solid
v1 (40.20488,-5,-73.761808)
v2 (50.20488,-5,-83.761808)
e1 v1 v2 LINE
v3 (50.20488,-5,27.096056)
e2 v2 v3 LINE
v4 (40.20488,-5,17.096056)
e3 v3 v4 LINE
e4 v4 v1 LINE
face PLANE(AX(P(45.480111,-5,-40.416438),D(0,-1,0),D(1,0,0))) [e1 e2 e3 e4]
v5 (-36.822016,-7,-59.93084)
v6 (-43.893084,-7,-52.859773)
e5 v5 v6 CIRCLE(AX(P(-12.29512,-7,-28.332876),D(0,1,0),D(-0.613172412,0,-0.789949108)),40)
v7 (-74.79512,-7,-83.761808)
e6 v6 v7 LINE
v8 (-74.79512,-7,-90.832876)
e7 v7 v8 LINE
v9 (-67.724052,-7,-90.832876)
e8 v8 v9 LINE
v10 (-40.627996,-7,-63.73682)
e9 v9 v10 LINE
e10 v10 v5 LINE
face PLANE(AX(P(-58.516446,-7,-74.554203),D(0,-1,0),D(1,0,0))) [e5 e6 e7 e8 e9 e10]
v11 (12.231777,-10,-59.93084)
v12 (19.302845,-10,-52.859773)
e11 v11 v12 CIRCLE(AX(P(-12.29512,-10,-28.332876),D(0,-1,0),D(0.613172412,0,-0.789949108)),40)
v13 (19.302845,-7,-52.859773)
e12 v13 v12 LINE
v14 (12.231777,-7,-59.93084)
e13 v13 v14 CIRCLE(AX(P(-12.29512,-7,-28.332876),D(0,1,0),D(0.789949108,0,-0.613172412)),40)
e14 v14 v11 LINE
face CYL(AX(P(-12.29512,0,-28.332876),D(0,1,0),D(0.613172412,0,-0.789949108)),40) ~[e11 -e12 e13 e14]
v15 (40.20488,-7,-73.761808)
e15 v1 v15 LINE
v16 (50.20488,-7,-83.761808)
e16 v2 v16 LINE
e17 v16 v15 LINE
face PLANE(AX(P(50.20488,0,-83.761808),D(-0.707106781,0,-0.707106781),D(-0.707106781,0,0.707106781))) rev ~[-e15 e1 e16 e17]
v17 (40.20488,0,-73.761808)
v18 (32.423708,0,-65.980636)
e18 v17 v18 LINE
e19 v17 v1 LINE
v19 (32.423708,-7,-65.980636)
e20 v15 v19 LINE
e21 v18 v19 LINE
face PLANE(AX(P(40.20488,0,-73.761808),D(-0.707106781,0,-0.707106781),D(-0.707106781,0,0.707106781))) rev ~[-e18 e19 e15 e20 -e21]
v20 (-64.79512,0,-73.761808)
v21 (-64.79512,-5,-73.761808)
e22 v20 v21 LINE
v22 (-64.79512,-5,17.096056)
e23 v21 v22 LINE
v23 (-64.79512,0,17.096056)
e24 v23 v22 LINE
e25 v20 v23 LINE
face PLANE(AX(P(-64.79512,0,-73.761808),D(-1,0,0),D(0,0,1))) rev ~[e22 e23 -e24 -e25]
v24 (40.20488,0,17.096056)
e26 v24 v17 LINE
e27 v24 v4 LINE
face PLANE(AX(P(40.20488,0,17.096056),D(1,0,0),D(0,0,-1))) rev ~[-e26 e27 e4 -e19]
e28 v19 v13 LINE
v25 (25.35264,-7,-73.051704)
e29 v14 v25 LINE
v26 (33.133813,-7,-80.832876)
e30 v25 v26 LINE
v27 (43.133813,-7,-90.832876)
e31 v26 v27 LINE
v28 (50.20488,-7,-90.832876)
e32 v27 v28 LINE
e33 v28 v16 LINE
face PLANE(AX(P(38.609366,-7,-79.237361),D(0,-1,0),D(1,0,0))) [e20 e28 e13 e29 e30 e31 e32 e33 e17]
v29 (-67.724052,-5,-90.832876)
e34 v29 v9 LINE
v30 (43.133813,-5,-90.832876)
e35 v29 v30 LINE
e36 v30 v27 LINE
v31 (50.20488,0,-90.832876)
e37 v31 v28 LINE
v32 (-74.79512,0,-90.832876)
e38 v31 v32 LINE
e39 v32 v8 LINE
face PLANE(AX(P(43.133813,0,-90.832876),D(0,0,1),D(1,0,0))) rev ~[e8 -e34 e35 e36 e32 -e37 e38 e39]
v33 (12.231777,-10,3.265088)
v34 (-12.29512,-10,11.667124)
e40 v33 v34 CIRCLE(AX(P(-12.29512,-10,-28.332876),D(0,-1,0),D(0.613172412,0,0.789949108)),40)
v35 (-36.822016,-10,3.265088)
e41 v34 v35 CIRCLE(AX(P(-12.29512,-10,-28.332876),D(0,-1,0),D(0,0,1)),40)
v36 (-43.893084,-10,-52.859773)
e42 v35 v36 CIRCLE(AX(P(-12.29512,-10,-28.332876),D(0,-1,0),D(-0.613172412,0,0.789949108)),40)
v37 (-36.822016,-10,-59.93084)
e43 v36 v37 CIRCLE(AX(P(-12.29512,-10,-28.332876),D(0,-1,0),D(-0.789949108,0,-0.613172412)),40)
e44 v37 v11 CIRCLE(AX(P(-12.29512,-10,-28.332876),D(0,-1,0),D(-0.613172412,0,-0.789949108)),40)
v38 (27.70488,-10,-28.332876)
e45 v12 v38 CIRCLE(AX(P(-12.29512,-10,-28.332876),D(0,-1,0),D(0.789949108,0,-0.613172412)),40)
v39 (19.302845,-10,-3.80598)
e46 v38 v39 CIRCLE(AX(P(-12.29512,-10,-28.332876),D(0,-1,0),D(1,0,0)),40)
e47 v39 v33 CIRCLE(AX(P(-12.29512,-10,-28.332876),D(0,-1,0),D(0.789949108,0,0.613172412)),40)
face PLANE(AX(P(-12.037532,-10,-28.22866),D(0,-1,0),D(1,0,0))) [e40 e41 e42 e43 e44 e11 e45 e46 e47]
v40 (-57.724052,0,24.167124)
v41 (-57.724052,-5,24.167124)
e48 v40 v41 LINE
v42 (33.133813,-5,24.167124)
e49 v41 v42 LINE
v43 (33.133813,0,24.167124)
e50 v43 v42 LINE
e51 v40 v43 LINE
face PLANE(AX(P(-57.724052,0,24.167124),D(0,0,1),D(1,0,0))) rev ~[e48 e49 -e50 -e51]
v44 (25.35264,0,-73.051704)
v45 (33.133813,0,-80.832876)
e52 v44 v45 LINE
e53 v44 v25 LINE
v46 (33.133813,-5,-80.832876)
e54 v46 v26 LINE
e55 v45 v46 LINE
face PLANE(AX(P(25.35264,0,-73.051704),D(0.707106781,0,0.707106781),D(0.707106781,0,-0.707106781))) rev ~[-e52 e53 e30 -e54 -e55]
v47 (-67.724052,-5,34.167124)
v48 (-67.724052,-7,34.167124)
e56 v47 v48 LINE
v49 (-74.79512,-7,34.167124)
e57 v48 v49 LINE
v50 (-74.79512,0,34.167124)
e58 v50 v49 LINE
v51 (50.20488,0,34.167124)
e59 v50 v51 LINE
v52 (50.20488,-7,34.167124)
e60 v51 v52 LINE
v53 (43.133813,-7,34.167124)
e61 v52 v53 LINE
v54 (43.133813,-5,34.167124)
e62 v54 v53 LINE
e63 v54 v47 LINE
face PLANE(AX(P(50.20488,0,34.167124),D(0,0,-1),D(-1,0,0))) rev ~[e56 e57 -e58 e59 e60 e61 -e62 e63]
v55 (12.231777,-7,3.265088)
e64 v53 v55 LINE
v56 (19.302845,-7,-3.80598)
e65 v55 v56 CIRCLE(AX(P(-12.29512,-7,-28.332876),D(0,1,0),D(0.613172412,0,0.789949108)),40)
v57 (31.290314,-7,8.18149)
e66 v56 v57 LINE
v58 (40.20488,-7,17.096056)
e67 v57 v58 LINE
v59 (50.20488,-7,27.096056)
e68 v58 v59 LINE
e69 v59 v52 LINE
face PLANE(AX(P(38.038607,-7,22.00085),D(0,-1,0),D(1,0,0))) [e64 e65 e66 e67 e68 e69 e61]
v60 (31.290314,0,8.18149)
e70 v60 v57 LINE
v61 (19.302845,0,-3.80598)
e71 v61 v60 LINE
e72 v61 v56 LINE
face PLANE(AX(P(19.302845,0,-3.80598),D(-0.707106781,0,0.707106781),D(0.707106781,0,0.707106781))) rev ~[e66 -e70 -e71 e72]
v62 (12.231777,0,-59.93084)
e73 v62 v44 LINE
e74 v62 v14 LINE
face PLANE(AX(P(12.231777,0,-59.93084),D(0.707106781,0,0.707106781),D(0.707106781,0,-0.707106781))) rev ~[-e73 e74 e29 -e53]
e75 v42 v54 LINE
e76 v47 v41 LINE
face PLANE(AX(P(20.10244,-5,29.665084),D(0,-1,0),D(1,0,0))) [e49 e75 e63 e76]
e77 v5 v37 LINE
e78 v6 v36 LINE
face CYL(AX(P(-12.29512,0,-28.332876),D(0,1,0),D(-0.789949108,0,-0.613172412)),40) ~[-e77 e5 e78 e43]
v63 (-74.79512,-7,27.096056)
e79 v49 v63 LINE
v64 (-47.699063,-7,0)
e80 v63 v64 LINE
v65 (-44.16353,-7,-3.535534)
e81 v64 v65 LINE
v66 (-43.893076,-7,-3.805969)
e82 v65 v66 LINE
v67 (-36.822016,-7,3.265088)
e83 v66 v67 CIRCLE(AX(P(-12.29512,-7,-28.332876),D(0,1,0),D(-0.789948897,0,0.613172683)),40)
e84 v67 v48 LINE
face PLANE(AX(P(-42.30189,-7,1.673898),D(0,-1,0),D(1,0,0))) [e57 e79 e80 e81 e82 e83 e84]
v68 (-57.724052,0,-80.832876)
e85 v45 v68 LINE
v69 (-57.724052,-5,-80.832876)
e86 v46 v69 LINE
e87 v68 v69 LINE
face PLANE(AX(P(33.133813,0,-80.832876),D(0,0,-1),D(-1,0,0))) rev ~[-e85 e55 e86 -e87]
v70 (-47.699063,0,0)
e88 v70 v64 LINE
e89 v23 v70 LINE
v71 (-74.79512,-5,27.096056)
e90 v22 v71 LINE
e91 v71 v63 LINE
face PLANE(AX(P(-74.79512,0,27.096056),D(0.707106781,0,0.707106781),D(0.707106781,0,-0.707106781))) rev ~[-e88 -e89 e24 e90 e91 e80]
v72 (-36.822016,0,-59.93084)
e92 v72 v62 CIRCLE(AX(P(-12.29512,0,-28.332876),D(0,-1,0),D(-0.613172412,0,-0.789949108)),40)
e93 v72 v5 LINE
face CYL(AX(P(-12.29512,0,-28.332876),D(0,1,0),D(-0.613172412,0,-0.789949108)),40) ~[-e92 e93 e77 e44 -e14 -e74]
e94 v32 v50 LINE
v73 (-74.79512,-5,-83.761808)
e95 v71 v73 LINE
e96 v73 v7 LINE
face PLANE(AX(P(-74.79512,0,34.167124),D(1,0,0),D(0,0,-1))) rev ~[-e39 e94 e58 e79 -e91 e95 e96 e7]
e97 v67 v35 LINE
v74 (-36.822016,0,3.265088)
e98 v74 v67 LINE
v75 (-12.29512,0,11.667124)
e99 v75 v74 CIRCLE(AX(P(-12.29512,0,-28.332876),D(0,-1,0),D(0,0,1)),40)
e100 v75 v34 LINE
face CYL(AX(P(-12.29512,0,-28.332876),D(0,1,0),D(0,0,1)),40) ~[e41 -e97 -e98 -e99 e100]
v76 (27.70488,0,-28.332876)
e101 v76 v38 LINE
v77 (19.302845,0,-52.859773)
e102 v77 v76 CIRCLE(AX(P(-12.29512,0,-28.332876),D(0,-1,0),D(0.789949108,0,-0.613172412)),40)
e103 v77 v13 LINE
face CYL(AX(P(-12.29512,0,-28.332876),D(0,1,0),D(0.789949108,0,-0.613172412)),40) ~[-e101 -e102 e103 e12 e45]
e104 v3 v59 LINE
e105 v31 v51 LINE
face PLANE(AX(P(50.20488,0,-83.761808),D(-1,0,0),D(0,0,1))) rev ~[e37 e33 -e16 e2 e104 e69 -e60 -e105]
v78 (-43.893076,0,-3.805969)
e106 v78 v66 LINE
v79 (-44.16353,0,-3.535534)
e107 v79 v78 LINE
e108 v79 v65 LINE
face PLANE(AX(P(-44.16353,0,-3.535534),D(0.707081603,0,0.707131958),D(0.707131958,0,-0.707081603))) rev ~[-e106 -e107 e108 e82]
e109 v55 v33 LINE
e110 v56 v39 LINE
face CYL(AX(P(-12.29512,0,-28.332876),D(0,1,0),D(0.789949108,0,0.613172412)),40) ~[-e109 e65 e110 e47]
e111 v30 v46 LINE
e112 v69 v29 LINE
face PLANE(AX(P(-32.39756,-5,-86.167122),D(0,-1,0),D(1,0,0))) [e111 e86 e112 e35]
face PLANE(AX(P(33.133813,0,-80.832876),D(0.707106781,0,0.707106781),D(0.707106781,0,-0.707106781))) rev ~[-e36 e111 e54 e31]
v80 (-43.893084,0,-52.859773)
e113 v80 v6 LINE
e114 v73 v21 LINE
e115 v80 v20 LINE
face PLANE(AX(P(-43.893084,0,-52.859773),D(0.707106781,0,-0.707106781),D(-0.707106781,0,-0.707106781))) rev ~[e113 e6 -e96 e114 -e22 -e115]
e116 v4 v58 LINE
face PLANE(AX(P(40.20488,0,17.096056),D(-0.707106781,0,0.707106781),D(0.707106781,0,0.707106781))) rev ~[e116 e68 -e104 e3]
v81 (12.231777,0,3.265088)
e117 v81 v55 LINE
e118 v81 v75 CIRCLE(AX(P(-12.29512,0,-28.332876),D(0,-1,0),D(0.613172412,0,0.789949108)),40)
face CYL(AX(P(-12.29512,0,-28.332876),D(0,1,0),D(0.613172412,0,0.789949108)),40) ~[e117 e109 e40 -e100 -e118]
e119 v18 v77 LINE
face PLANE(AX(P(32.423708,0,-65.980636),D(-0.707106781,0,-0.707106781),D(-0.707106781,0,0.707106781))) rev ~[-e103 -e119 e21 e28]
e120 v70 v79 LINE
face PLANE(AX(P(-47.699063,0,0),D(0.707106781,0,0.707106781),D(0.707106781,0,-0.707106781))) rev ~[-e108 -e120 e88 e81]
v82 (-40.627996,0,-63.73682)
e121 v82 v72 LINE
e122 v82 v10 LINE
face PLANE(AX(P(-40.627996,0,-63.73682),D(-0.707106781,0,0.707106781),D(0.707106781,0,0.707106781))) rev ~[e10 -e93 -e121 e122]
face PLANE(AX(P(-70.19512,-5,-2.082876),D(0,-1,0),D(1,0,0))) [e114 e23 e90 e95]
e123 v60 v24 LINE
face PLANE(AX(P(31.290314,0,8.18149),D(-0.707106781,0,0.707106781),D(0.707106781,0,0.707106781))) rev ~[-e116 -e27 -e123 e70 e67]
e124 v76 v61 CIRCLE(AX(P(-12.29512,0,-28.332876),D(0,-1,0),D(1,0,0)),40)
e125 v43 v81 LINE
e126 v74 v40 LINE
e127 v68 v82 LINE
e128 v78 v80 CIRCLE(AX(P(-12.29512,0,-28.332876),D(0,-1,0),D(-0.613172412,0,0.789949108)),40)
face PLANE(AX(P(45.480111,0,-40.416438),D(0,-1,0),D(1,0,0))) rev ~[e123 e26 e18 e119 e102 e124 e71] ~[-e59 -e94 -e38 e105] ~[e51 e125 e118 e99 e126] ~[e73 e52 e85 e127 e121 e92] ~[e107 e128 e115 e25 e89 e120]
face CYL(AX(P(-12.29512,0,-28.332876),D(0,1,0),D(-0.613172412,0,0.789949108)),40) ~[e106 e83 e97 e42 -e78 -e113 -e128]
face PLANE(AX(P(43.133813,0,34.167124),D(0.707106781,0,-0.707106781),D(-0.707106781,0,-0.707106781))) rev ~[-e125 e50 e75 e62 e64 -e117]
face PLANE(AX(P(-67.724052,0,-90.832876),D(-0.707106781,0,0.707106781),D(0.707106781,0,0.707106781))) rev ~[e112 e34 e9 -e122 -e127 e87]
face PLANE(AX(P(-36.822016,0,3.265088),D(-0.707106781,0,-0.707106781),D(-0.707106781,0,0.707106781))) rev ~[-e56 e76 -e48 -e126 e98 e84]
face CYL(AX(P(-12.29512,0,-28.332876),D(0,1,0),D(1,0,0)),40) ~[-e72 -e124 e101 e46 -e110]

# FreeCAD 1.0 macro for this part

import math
import FreeCAD as App
import Part
import Sketcher
from FreeCAD import Vector


def add_polygon(sketch, points):
    """Adds a closed chain of lines whose ends are joined by coincident constraints."""
    first, n = sketch.GeometryCount, len(points)
    for a, b in zip(points, points[1:] + points[:1]):
        sketch.addGeometry(Part.LineSegment(App.Vector(*a, 0), App.Vector(*b, 0)), False)
    for i in range(n):
        sketch.addConstraint(Sketcher.Constraint("Coincident", first + i, 2, first + (i + 1) % n, 1))

doc = App.newDocument("Part")
params = doc.addObject("Spreadsheet::Sheet", "Params")
for row, (alias, value) in enumerate([
    ("sketch1_radius", "40 mm"),
    ("pad1_length", "10 mm"),
    ("sketch2_radius", "40 mm"),
    ("sketch2_length", "5 mm"),
    ("pad2_length", "7 mm"),
    ("pad3_length", "5 mm"),
], start=1):
    params.set(f"A{row}", alias)
    params.set(f"B{row}", "=" + value)
    params.setAlias(f"B{row}", alias)

body = doc.addObject("PartDesign::Body", "Body")

# Sketch on XZ plane
sketch1 = body.newObject("Sketcher::SketchObject", "Sketch")
sketch1.AttachmentSupport = (doc.getObject("XZ_Plane"), [""])
sketch1.MapMode = "FlatFace"
sketch1.addGeometry([
    Part.ArcOfCircle(Part.Circle(Vector(-12, -28, 0), Vector(0, 0, 1), 40), math.radians(0), math.radians(38)),  # 0
    Part.ArcOfCircle(Part.Circle(Vector(-12, -28, 0), Vector(0, 0, 1), 40), math.radians(37.82), math.radians(52.18)),  # 1
    Part.ArcOfCircle(Part.Circle(Vector(-12, -28, 0), Vector(0, 0, 1), 40), math.radians(52), math.radians(90)),  # 2
    Part.ArcOfCircle(Part.Circle(Vector(-12, -28, 0), Vector(0, 0, 1), 40), math.radians(90), math.radians(128)),  # 3
    Part.ArcOfCircle(Part.Circle(Vector(-12, -28, 0), Vector(0, 0, 1), 40), math.radians(128), math.radians(218)),  # 4
    Part.ArcOfCircle(Part.Circle(Vector(-12, -28, 0), Vector(0, 0, 1), 40), math.radians(-142.18), math.radians(-127.82)),  # 5
    Part.ArcOfCircle(Part.Circle(Vector(-12, -28, 0), Vector(0, 0, 1), 40), math.radians(-128), math.radians(-52)),  # 6
    Part.ArcOfCircle(Part.Circle(Vector(-12, -28, 0), Vector(0, 0, 1), 40), math.radians(-52.18), math.radians(-37.82)),  # 7
    Part.ArcOfCircle(Part.Circle(Vector(-12, -28, 0), Vector(0, 0, 1), 40), math.radians(-38), math.radians(0)),  # 8
], False)
sketch1.addConstraint([
    Sketcher.Constraint("Tangent", 0, 2, 1, 1),
    Sketcher.Constraint("Tangent", 1, 2, 2, 1),
    Sketcher.Constraint("Tangent", 2, 2, 3, 1),
    Sketcher.Constraint("Tangent", 3, 2, 4, 1),
    Sketcher.Constraint("Tangent", 4, 2, 5, 1),
    Sketcher.Constraint("Tangent", 5, 2, 6, 1),
    Sketcher.Constraint("Tangent", 6, 2, 7, 1),
    Sketcher.Constraint("Tangent", 7, 2, 8, 1),
    Sketcher.Constraint("Tangent", 8, 2, 0, 1),
    Sketcher.Constraint("Coincident", 2, 3, 0, 3),
    Sketcher.Constraint("Coincident", 4, 3, 0, 3),
    Sketcher.Constraint("Coincident", 6, 3, 0, 3),
    Sketcher.Constraint("Horizontal", 1, 2, 3, 2),
    Sketcher.Constraint("Horizontal", 5, 2, 6, 2),
    Sketcher.Constraint("Horizontal", 4, 2, 7, 2),
    Sketcher.Constraint("Horizontal", 7, 3, 8, 2),
    Sketcher.Constraint("Vertical", 8, 3, 2, 2),
    Sketcher.Constraint("Vertical", 3, 2, 5, 2),
    Sketcher.Constraint("Vertical", 0, 2, 7, 2),
    Sketcher.Constraint("Radius", 0, 40.0),
    Sketcher.Constraint("DistanceX", 0, 3, -1, 1, 12.29512),
    Sketcher.Constraint("DistanceY", 0, 2, -1, 1, 3.80598),
    Sketcher.Constraint("DistanceY", -1, 1, 1, 2, 3.265088),
    Sketcher.Constraint("DistanceY", 5, 2, -1, 1, 59.93084),
])
sketch1.setExpression("Constraints[19]", "Params.sketch1_radius")
pad1 = body.newObject("PartDesign::Pad", "Pad")
pad1.Profile = sketch1
pad1.setExpression("Length", "Params.pad1_length")

# Sketch on XZ plane
sketch2 = body.newObject("Sketcher::SketchObject", "Sketch001")
sketch2.AttachmentSupport = (doc.getObject("XZ_Plane"), [""])
sketch2.MapMode = "FlatFace"
sketch2.addGeometry([
    Part.ArcOfCircle(Part.Circle(Vector(-12.3, -28.33, 0), Vector(0, 0, 1), 40), math.radians(127.82), math.radians(142.18)),  # 0
    Part.LineSegment(Vector(-36.82, 3.27, 0), Vector(-67.72, 34.17, 0)),  # 1
    Part.LineSegment(Vector(-67.72, 34.17, 0), Vector(-74.8, 34.17, 0)),  # 2
    Part.LineSegment(Vector(-74.8, 34.17, 0), Vector(-74.8, 27.1, 0)),  # 3
    Part.LineSegment(Vector(-74.8, 27.1, 0), Vector(-47.7, 0, 0)),  # 4
    Part.LineSegment(Vector(-47.7, 0, 0), Vector(-44.16, -3.54, 0)),  # 5
    Part.LineSegment(Vector(-44.16, -3.54, 0), Vector(-43.89, -3.81, 0)),  # 6
    Part.LineSegment(Vector(-74.8, -90.83, 0), Vector(-67.72, -90.83, 0)),  # 7
    Part.LineSegment(Vector(-67.72, -90.83, 0), Vector(-40.63, -63.74, 0)),  # 8
    Part.LineSegment(Vector(-40.63, -63.74, 0), Vector(-36.82, -59.93, 0)),  # 9
    Part.ArcOfCircle(Part.Circle(Vector(-12.3, -28.33, 0), Vector(0, 0, 1), 40), math.radians(-142.18), math.radians(-127.82)),  # 10
    Part.LineSegment(Vector(-43.89, -52.86, 0), Vector(-74.8, -83.76, 0)),  # 11
    Part.LineSegment(Vector(-74.8, -83.76, 0), Vector(-74.8, -90.83, 0)),  # 12
    Part.LineSegment(Vector(40.2, 17.1, 0), Vector(50.2, 27.1, 0)),  # 13
    Part.LineSegment(Vector(50.2, 27.1, 0), Vector(50.2, 34.17, 0)),  # 14
    Part.LineSegment(Vector(50.2, 34.17, 0), Vector(43.13, 34.17, 0)),  # 15
    Part.LineSegment(Vector(43.13, 34.17, 0), Vector(12.23, 3.27, 0)),  # 16
    Part.ArcOfCircle(Part.Circle(Vector(-12.3, -28.33, 0), Vector(0, 0, 1), 40), math.radians(37.82), math.radians(52.18)),  # 17
    Part.LineSegment(Vector(19.3, -3.81, 0), Vector(31.29, 8.18, 0)),  # 18
    Part.LineSegment(Vector(31.29, 8.18, 0), Vector(40.2, 17.1, 0)),  # 19
    Part.LineSegment(Vector(50.2, -90.83, 0), Vector(50.2, -83.76, 0)),  # 20
    Part.LineSegment(Vector(50.2, -83.76, 0), Vector(40.2, -73.76, 0)),  # 21
    Part.LineSegment(Vector(40.2, -73.76, 0), Vector(32.42, -65.98, 0)),  # 22
    Part.LineSegment(Vector(32.42, -65.98, 0), Vector(19.3, -52.86, 0)),  # 23
    Part.ArcOfCircle(Part.Circle(Vector(-12.3, -28.33, 0), Vector(0, 0, 1), 40), math.radians(-52.18), math.radians(-37.82)),  # 24
    Part.LineSegment(Vector(12.23, -59.93, 0), Vector(25.35, -73.05, 0)),  # 25
    Part.LineSegment(Vector(25.35, -73.05, 0), Vector(33.13, -80.83, 0)),  # 26
    Part.LineSegment(Vector(33.13, -80.83, 0), Vector(43.13, -90.83, 0)),  # 27
    Part.LineSegment(Vector(43.13, -90.83, 0), Vector(50.2, -90.83, 0)),  # 28
], False)
sketch2.addConstraint([
    Sketcher.Constraint("Coincident", 0, 1, 1, 1),
    Sketcher.Constraint("Coincident", 1, 2, 2, 1),
    Sketcher.Constraint("Coincident", 2, 2, 3, 1),
    Sketcher.Constraint("Coincident", 3, 2, 4, 1),
    Sketcher.Constraint("Coincident", 4, 2, 5, 1),
    Sketcher.Constraint("Coincident", 5, 2, 6, 1),
    Sketcher.Constraint("Coincident", 6, 2, 0, 2),
    Sketcher.Constraint("Coincident", 7, 2, 8, 1),
    Sketcher.Constraint("Coincident", 8, 2, 9, 1),
    Sketcher.Constraint("Coincident", 9, 2, 10, 2),
    Sketcher.Constraint("Coincident", 10, 1, 11, 1),
    Sketcher.Constraint("Coincident", 11, 2, 12, 1),
    Sketcher.Constraint("Coincident", 12, 2, 7, 1),
    Sketcher.Constraint("Coincident", 13, 2, 14, 1),
    Sketcher.Constraint("Coincident", 14, 2, 15, 1),
    Sketcher.Constraint("Coincident", 15, 2, 16, 1),
    Sketcher.Constraint("Coincident", 16, 2, 17, 2),
    Sketcher.Constraint("Coincident", 17, 1, 18, 1),
    Sketcher.Constraint("Coincident", 18, 2, 19, 1),
    Sketcher.Constraint("Coincident", 19, 2, 13, 1),
    Sketcher.Constraint("Coincident", 20, 2, 21, 1),
    Sketcher.Constraint("Coincident", 21, 2, 22, 1),
    Sketcher.Constraint("Coincident", 22, 2, 23, 1),
    Sketcher.Constraint("Coincident", 23, 2, 24, 2),
    Sketcher.Constraint("Coincident", 24, 1, 25, 1),
    Sketcher.Constraint("Coincident", 25, 2, 26, 1),
    Sketcher.Constraint("Coincident", 26, 2, 27, 1),
    Sketcher.Constraint("Coincident", 27, 2, 28, 1),
    Sketcher.Constraint("Coincident", 28, 2, 20, 1),
    Sketcher.Constraint("Horizontal", 2),
    Sketcher.Constraint("Vertical", 3),
    Sketcher.Constraint("Horizontal", 7),
    Sketcher.Constraint("Vertical", 12),
    Sketcher.Constraint("Vertical", 14),
    Sketcher.Constraint("Horizontal", 15),
    Sketcher.Constraint("Vertical", 20),
    Sketcher.Constraint("Horizontal", 28),
    Sketcher.Constraint("Coincident", 10, 3, 0, 3),
    Sketcher.Constraint("Coincident", 17, 3, 0, 3),
    Sketcher.Constraint("Coincident", 24, 3, 0, 3),
    Sketcher.Constraint("Equal", 0, 10),
    Sketcher.Constraint("Equal", 10, 17),
    Sketcher.Constraint("Equal", 17, 24),
    Sketcher.Constraint("PointOnObject", 4, 2, -1),
    Sketcher.Constraint("Parallel", 1, 4),
    Sketcher.Constraint("Parallel", 4, 5),
    Sketcher.Constraint("Perpendicular", 5, 8),
    Sketcher.Constraint("Parallel", 8, 9),
    Sketcher.Constraint("Parallel", 9, 11),
    Sketcher.Constraint("Parallel", 11, 13),
    Sketcher.Constraint("Parallel", 13, 16),
    Sketcher.Constraint("Parallel", 16, 18),
    Sketcher.Constraint("Parallel", 18, 19),
    Sketcher.Constraint("Perpendicular", 19, 21),
    Sketcher.Constraint("Parallel", 21, 22),
    Sketcher.Constraint("Parallel", 22, 23),
    Sketcher.Constraint("Parallel", 23, 25),
    Sketcher.Constraint("Parallel", 25, 26),
    Sketcher.Constraint("Parallel", 26, 27),
    Sketcher.Constraint("Horizontal", 3, 2, 13, 2),
    Sketcher.Constraint("Horizontal", 2, 2, 14, 2),
    Sketcher.Constraint("Horizontal", 0, 1, 16, 2),
    Sketcher.Constraint("Horizontal", 11, 2, 20, 2),
    Sketcher.Constraint("Horizontal", 10, 1, 23, 2),
    Sketcher.Constraint("Horizontal", 9, 2, 24, 1),
    Sketcher.Constraint("Horizontal", 12, 2, 27, 2),
    Sketcher.Constraint("Vertical", 1, 2, 7, 2),
    Sketcher.Constraint("Vertical", 0, 1, 9, 2),
    Sketcher.Constraint("Vertical", 3, 2, 11, 2),
    Sketcher.Constraint("Vertical", 14, 2, 20, 2),
    Sketcher.Constraint("Vertical", 19, 2, 21, 2),
    Sketcher.Constraint("Vertical", 17, 1, 23, 2),
    Sketcher.Constraint("Vertical", 15, 2, 27, 2),
    Sketcher.Constraint("Equal", 28, 3),
    Sketcher.Constraint("Equal", 4, 8),
    Sketcher.Constraint("Equal", 1, 11),
    Sketcher.Constraint("Equal", 23, 25),
    Sketcher.Constraint("Equal", 22, 26),
    Sketcher.Constraint("Radius", 0, 40.0),
    Sketcher.Constraint("Distance", 5, 5.0),
    Sketcher.Constraint("DistanceX", 19, 2, 13, 2, 10.0),
    Sketcher.Constraint("DistanceY", 24, 3, 1, 2, 62.5),
    Sketcher.Constraint("Distance", 19, 12.607101),
    Sketcher.Constraint("DistanceY", 16, 2, 18, 2, 4.916401),
    Sketcher.Constraint("Distance", 4, 38.31961),
    Sketcher.Constraint("Distance", 22, 11.004239),
    Sketcher.Constraint("DistanceX", 0, 3, -1, 1, 12.29512),
    Sketcher.Constraint("DistanceY", 6, 2, -1, 1, 3.805969),
])
sketch2.setExpression("Constraints[78]", "Params.sketch2_radius")
sketch2.setExpression("Constraints[79]", "Params.sketch2_length")
pad2 = body.newObject("PartDesign::Pad", "Pad001")
pad2.Profile = sketch2
pad2.setExpression("Length", "Params.pad2_length")

# Sketch on XZ plane
sketch3 = body.newObject("Sketcher::SketchObject", "Sketch002")
sketch3.AttachmentSupport = (doc.getObject("XZ_Plane"), [""])
sketch3.MapMode = "FlatFace"
add_polygon(sketch3, [(50, -84), (50, 27), (40, 17), (40, -74)])  # lines 0-3
add_polygon(sketch3, [(33, 24), (43, 34), (-68, 34), (-58, 24)])  # lines 4-7
add_polygon(sketch3, [(-65, 17), (-75, 27), (-75, -84), (-65, -74)])  # lines 8-11
add_polygon(sketch3, [(-68, -91), (43, -91), (33, -81), (-58, -81)])  # lines 12-15
sketch3.addConstraint([
    Sketcher.Constraint("Vertical", 0),
    Sketcher.Constraint("Vertical", 2),
    Sketcher.Constraint("Horizontal", 5),
    Sketcher.Constraint("Horizontal", 7),
    Sketcher.Constraint("Vertical", 9),
    Sketcher.Constraint("Vertical", 11),
    Sketcher.Constraint("Horizontal", 12),
    Sketcher.Constraint("Horizontal", 14),
    Sketcher.Constraint("Perpendicular", 1, 3),
    Sketcher.Constraint("Perpendicular", 3, 4),
    Sketcher.Constraint("Perpendicular", 4, 6),
    Sketcher.Constraint("Parallel", 6, 8),
    Sketcher.Constraint("Perpendicular", 8, 10),
    Sketcher.Constraint("Perpendicular", 10, 13),
    Sketcher.Constraint("Perpendicular", 13, 15),
    Sketcher.Constraint("Horizontal", 0, 2, 8, 2),
    Sketcher.Constraint("Horizontal", 3, 2, 9, 2),
    Sketcher.Constraint("Horizontal", 2, 2, 10, 2),
    Sketcher.Constraint("Horizontal", 1, 2, 11, 2),
    Sketcher.Constraint("Vertical", 4, 2, 12, 2),
    Sketcher.Constraint("Vertical", 7, 2, 13, 2),
    Sketcher.Constraint("Vertical", 6, 2, 14, 2),
    Sketcher.Constraint("Equal", 12, 0),
    Sketcher.Constraint("Equal", 14, 2),
    Sketcher.Constraint("DistanceX", 1, 2, 0, 2, 10.0),
    Sketcher.Constraint("DistanceX", 8, 2, 1, 2, 115.0),
    Sketcher.Constraint("DistanceY", 12, 2, 7, 2, 115.0),
    Sketcher.Constraint("DistanceX", 5, 2, 5, 1, 110.857864),
    Sketcher.Constraint("DistanceX", -1, 1, 0, 2, 50.20488),
    Sketcher.Constraint("DistanceY", 2, 2, -1, 1, 73.761808),
    Sketcher.Constraint("DistanceX", 5, 2, -1, 1, 67.724052),
    Sketcher.Constraint("DistanceY", -1, 1, 4, 2, 34.167124),
])
pad3 = body.newObject("PartDesign::Pad", "Pad002")
pad3.Profile = sketch3
pad3.setExpression("Length", "Params.pad3_length")

doc.recompute()
